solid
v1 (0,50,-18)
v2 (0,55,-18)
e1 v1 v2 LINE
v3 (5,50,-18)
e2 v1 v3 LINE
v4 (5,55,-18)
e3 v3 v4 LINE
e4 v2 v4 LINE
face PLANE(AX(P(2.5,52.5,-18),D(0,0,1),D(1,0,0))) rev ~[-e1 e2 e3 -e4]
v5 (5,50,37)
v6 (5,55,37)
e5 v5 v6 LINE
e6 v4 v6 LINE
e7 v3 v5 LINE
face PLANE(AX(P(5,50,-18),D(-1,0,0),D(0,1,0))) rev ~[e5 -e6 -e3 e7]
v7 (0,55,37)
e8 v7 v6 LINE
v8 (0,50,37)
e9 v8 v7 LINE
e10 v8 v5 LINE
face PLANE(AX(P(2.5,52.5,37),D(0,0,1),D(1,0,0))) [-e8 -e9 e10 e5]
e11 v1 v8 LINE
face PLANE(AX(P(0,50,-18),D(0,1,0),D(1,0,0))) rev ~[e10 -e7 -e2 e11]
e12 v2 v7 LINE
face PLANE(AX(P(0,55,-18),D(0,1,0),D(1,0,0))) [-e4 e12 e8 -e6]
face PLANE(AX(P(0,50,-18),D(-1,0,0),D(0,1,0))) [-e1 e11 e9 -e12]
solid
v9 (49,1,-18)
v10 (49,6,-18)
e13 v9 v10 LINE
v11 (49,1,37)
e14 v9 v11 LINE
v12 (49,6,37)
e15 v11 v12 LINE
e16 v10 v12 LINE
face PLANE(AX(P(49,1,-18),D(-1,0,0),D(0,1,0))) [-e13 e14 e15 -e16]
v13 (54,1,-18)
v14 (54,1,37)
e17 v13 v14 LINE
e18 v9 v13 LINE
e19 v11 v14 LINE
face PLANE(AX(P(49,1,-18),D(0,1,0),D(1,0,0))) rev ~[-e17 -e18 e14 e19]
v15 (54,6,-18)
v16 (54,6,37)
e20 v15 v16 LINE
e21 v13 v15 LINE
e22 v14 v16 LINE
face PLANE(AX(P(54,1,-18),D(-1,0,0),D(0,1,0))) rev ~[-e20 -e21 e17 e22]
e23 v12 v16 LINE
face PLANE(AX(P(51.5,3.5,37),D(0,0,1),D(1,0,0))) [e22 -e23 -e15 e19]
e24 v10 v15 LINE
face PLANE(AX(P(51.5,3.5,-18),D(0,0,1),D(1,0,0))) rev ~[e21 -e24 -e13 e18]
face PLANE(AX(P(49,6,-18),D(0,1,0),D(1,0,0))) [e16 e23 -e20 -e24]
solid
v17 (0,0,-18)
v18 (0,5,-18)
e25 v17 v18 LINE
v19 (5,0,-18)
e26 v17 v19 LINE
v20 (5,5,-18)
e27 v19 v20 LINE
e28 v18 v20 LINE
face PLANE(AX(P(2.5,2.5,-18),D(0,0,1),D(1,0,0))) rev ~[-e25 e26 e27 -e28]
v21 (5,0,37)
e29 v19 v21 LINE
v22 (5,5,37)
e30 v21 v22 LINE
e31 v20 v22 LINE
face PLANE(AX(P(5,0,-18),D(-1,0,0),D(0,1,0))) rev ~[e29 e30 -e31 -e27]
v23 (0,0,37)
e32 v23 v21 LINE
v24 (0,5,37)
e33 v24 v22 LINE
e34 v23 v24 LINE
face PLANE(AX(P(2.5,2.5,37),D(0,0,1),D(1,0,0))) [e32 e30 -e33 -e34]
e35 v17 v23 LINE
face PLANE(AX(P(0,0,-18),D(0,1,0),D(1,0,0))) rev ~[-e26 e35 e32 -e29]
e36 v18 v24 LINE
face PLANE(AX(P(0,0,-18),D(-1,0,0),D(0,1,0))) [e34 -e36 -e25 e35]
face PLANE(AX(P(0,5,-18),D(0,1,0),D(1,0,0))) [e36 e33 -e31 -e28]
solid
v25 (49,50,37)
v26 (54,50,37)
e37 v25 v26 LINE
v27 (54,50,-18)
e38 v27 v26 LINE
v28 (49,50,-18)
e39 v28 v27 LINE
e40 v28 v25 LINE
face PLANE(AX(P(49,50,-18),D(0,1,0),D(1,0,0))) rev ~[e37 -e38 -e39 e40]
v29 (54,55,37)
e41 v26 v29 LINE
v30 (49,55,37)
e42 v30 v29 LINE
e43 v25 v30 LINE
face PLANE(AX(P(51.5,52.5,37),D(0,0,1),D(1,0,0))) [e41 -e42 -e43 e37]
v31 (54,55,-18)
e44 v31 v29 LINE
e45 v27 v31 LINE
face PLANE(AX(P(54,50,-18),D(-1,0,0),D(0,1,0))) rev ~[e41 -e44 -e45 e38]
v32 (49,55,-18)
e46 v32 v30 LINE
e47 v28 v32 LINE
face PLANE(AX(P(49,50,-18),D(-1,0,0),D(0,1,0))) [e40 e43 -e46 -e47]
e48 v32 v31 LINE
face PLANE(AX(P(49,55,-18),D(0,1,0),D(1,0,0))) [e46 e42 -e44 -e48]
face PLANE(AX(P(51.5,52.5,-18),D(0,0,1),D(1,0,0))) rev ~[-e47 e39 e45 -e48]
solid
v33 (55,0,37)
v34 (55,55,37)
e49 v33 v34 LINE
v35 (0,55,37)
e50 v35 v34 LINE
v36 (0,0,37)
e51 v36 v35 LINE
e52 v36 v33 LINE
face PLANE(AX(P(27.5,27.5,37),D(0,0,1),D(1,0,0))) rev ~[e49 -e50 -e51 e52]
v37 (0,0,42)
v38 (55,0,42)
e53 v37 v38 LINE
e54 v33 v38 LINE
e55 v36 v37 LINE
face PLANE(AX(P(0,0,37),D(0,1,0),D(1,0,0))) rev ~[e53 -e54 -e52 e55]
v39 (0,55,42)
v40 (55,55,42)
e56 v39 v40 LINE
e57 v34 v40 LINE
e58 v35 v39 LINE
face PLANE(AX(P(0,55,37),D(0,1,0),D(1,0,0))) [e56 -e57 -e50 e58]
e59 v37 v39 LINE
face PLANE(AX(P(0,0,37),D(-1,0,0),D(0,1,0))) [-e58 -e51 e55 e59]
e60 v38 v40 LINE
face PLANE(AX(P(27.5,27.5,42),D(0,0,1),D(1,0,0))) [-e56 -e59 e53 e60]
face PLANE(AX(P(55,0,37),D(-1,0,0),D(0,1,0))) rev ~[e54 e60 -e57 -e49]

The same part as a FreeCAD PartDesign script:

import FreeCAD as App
import Part
import Sketcher


def add_polygon(sketch, points):
    """Adds a closed chain of lines whose ends are joined by coincident constraints."""
    first, n = sketch.GeometryCount, len(points)
    for a, b in zip(points, points[1:] + points[:1]):
        sketch.addGeometry(Part.LineSegment(App.Vector(*a, 0), App.Vector(*b, 0)), False)
    for i in range(n):
        sketch.addConstraint(Sketcher.Constraint("Coincident", first + i, 2, first + (i + 1) % n, 1))

doc = App.newDocument("Part")
body = doc.addObject("PartDesign::Body", "Body")

# Sketch on XY plane
sketch1 = doc.addObject("Sketcher::SketchObject", "Sketch")
body.addObject(sketch1)
sketch1.AttachmentSupport = (doc.XY_Plane, [""])
sketch1.MapMode = "FlatFace"
sketch1.AttachmentOffset = App.Placement(App.Vector(0, 0, 37), App.Rotation())
add_polygon(sketch1, [(0, 55), (0, 0), (55, 0), (55, 55)])  # lines 0-3
sketch1.addConstraint([
    Sketcher.Constraint("Vertical", 0),
    Sketcher.Constraint("Horizontal", 1),
    Sketcher.Constraint("Vertical", 2),
    Sketcher.Constraint("Horizontal", 3),
    Sketcher.Constraint("Coincident", 0, 2, -1, 1),
    Sketcher.Constraint("Equal", 3, 0),
    Sketcher.Constraint("DistanceX", 1, 1, 1, 2, 55.0),
])
pad1 = doc.addObject("PartDesign::Pad", "Pad")
body.addObject(pad1)
pad1.Profile = sketch1
pad1.Length = 5
body2 = doc.addObject("PartDesign::Body", "Body001")

# Sketch on XY plane
sketch2 = doc.addObject("Sketcher::SketchObject", "Sketch001")
body2.addObject(sketch2)
sketch2.AttachmentSupport = (doc.getObject("XY_Plane001"), [""])
sketch2.MapMode = "FlatFace"
sketch2.AttachmentOffset = App.Placement(App.Vector(0, 0, -18), App.Rotation())
add_polygon(sketch2, [(0, 5), (0, 0), (5, 0), (5, 5)])  # lines 0-3
sketch2.addConstraint([
    Sketcher.Constraint("Vertical", 0),
    Sketcher.Constraint("Horizontal", 1),
    Sketcher.Constraint("Vertical", 2),
    Sketcher.Constraint("Horizontal", 3),
    Sketcher.Constraint("Coincident", 0, 2, -1, 1),
    Sketcher.Constraint("Equal", 3, 0),
    Sketcher.Constraint("DistanceX", 1, 1, 1, 2, 5.0),
])
pad2 = doc.addObject("PartDesign::Pad", "Pad001")
body2.addObject(pad2)
pad2.Profile = sketch2
pad2.Length = 55
body3 = doc.addObject("PartDesign::Body", "Body002")

# Sketch on XY plane
sketch3 = doc.addObject("Sketcher::SketchObject", "Sketch002")
body3.addObject(sketch3)
sketch3.AttachmentSupport = (doc.getObject("XY_Plane002"), [""])
sketch3.MapMode = "FlatFace"
sketch3.AttachmentOffset = App.Placement(App.Vector(0, 0, -18), App.Rotation())
add_polygon(sketch3, [(49, 6), (49, 1), (54, 1), (54, 6)])  # lines 0-3
sketch3.addConstraint([
    Sketcher.Constraint("Vertical", 0),
    Sketcher.Constraint("Horizontal", 1),
    Sketcher.Constraint("Vertical", 2),
    Sketcher.Constraint("Horizontal", 3),
    Sketcher.Constraint("Equal", 3, 0),
    Sketcher.Constraint("DistanceX", 1, 1, 1, 2, 5.0),
    Sketcher.Constraint("DistanceX", -1, 1, 0, 2, 49.0),
    Sketcher.Constraint("DistanceY", -1, 1, 0, 2, 1.0),
])
pad3 = doc.addObject("PartDesign::Pad", "Pad002")
body3.addObject(pad3)
pad3.Profile = sketch3
pad3.Length = 55
body4 = doc.addObject("PartDesign::Body", "Body003")

# Sketch on XY plane
sketch4 = doc.addObject("Sketcher::SketchObject", "Sketch003")
body4.addObject(sketch4)
sketch4.AttachmentSupport = (doc.getObject("XY_Plane003"), [""])
sketch4.MapMode = "FlatFace"
sketch4.AttachmentOffset = App.Placement(App.Vector(0, 0, -18), App.Rotation())
add_polygon(sketch4, [(49, 55), (49, 50), (54, 50), (54, 55)])  # lines 0-3
sketch4.addConstraint([
    Sketcher.Constraint("Vertical", 0),
    Sketcher.Constraint("Horizontal", 1),
    Sketcher.Constraint("Vertical", 2),
    Sketcher.Constraint("Horizontal", 3),
    Sketcher.Constraint("Equal", 3, 0),
    Sketcher.Constraint("DistanceX", 1, 1, 1, 2, 5.0),
    Sketcher.Constraint("DistanceX", -1, 1, 0, 2, 49.0),
    Sketcher.Constraint("DistanceY", -1, 1, 0, 2, 50.0),
])
pad4 = doc.addObject("PartDesign::Pad", "Pad003")
body4.addObject(pad4)
pad4.Profile = sketch4
pad4.Length = 55
body5 = doc.addObject("PartDesign::Body", "Body004")

# Sketch on XY plane
sketch5 = doc.addObject("Sketcher::SketchObject", "Sketch004")
body5.addObject(sketch5)
sketch5.AttachmentSupport = (doc.getObject("XY_Plane004"), [""])
sketch5.MapMode = "FlatFace"
sketch5.AttachmentOffset = App.Placement(App.Vector(0, 0, -18), App.Rotation())
add_polygon(sketch5, [(0, 55), (0, 50), (5, 50), (5, 55)])  # lines 0-3
sketch5.addConstraint([
    Sketcher.Constraint("Vertical", 0),
    Sketcher.Constraint("Horizontal", 1),
    Sketcher.Constraint("Vertical", 2),
    Sketcher.Constraint("Horizontal", 3),
    Sketcher.Constraint("PointOnObject", 0, 2, -2),
    Sketcher.Constraint("Equal", 3, 0),
    Sketcher.Constraint("DistanceX", 1, 1, 1, 2, 5.0),
    Sketcher.Constraint("DistanceY", -1, 1, 0, 2, 50.0),
])
pad5 = doc.addObject("PartDesign::Pad", "Pad004")
body5.addObject(pad5)
pad5.Profile = sketch5
pad5.Length = 55

doc.recompute()
